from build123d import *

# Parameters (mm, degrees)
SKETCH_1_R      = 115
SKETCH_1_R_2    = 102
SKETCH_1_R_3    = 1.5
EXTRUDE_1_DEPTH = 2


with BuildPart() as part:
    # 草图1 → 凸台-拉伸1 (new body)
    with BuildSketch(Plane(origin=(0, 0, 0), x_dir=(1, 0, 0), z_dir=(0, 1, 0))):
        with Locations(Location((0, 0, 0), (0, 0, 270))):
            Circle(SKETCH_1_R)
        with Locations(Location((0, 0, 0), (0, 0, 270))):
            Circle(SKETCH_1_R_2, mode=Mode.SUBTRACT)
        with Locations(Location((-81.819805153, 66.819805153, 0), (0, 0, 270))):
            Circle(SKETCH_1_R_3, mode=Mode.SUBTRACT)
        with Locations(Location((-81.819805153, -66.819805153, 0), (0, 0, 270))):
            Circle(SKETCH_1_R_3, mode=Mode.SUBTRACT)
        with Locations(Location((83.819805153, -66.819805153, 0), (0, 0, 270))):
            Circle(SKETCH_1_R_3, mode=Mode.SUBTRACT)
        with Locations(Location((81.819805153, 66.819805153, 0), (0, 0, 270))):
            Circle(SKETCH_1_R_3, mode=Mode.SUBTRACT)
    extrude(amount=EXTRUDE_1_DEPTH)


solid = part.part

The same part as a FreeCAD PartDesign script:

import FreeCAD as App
import Part
import Sketcher
Q = App.Units.Quantity

doc = App.newDocument("Part")
body = doc.addObject("PartDesign::Body", "Body")

sketch1 = body.newObject("Sketcher::SketchObject", "Sketch")
sketch1.AttachmentSupport = (doc.getObject("XZ_Plane"), [""])
sketch1.MapMode = "FlatFace"
sketch1.addGeometry([
    Part.Circle(App.Vector(0, 0, 0), App.Vector(0, 0, 1), 115),
    Part.Circle(App.Vector(-81.8, -66.8, 0), App.Vector(0, 0, 1), 1.5),
    Part.Circle(App.Vector(-81.8, 66.8, 0), App.Vector(0, 0, 1), 1.5),
    Part.Circle(App.Vector(81.8, -66.8, 0), App.Vector(0, 0, 1), 1.5),
    Part.Circle(App.Vector(0, 0, 0), App.Vector(0, 0, 1), 102),
    Part.Circle(App.Vector(83.8, 66.8, 0), App.Vector(0, 0, 1), 1.5),
], False)
sketch1.addConstraint([
    Sketcher.Constraint("Coincident", 0, 3, -1, 1),
    Sketcher.Constraint("Coincident", 4, 3, -1, 1),
    Sketcher.Constraint("Equal", 1, 2),
    Sketcher.Constraint("Equal", 2, 3),
    Sketcher.Constraint("Equal", 3, 5),
    Sketcher.Constraint("Symmetric", 2, 3, 3, 3, -1, 1),
    Sketcher.Constraint("Symmetric", 1, 3, 3, 3, -2),
    Sketcher.Constraint("Horizontal", 2, 3, 5, 3),
    Sketcher.Constraint("Diameter", 0, Q("230 mm")),
    Sketcher.Constraint("Diameter", 1, Q("3 mm")),
    Sketcher.Constraint("Diameter", 4, Q("204 mm")),
    Sketcher.Constraint("DistanceX", 3, 3, 5, 3, Q("2 mm")),
    Sketcher.Constraint("DistanceY", 1, 3, 2, 3, Q("133.63961 mm")),
    Sketcher.Constraint("DistanceX", 1, 3, 3, 3, Q("163.63961 mm")),
])
pad1 = body.newObject("PartDesign::Pad", "Pad")
pad1.Profile = sketch1
pad1.Length = 2
pad1.Reversed = True

doc.recompute()
